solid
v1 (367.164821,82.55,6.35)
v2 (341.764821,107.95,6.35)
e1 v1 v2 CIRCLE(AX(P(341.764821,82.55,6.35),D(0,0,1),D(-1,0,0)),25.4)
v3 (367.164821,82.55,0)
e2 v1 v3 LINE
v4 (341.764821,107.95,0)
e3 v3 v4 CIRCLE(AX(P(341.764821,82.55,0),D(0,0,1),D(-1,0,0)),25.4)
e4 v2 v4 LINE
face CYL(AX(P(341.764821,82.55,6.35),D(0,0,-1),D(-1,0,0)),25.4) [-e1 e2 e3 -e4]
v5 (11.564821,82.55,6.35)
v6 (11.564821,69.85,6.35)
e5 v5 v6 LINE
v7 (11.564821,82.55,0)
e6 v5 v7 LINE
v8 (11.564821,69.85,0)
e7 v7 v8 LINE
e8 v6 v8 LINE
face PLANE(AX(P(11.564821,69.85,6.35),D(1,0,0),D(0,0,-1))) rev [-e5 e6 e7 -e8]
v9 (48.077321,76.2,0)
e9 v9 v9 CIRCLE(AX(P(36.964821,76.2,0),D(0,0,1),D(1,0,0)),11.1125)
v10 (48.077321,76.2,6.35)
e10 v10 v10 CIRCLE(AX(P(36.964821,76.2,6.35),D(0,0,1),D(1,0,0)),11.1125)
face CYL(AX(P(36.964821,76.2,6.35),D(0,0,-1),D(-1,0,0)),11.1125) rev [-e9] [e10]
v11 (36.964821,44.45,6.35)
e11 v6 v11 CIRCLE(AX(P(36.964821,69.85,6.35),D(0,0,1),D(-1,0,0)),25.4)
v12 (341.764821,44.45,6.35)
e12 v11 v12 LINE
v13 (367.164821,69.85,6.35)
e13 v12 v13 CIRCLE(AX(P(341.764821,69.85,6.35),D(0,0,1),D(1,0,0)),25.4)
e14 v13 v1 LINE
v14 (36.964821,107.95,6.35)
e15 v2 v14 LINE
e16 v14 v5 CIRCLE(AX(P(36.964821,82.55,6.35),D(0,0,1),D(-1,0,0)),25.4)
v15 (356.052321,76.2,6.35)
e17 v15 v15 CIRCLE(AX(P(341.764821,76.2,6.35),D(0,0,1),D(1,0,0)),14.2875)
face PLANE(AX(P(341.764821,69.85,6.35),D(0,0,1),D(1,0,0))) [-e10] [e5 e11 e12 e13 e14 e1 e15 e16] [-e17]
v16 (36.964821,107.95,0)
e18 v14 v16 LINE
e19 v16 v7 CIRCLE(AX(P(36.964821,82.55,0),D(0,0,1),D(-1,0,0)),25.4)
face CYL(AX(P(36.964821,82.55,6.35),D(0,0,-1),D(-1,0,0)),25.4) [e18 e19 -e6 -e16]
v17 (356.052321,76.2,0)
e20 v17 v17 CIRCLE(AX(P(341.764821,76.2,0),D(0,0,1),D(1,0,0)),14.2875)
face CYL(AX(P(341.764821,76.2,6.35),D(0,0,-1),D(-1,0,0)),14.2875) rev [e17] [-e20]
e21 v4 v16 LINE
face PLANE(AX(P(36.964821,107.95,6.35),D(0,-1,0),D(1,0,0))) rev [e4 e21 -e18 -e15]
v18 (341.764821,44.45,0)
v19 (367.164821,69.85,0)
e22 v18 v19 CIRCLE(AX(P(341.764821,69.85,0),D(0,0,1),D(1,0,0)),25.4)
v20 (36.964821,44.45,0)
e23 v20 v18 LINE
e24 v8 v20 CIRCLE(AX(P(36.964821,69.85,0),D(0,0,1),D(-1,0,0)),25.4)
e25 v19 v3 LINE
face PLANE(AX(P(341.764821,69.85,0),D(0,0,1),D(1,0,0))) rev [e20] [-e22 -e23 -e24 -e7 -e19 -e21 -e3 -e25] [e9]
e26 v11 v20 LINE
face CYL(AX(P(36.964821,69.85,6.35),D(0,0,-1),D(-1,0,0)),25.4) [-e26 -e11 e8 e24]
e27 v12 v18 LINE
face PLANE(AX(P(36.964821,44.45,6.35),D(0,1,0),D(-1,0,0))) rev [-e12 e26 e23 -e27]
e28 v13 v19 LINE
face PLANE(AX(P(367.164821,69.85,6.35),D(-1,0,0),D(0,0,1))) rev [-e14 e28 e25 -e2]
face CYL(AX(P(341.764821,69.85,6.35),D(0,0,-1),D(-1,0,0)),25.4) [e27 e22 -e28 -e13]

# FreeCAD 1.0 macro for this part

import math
import FreeCAD as App
import Part
import Sketcher

V = App.Vector
Q = App.Units.Quantity

doc = App.newDocument("Part")
params = doc.addObject("Spreadsheet::Sheet", "Params")
for row, (alias, value) in enumerate([
    ("sketch1_radius", "1 in"),
    ("sketch1_width", "12 in"),
    ("sketch1_diameter", "0.875 in"),
    ("sketch1_diameter2", "1.125 in"),
    ("sketch1_height", "0.5 in"),
    ("pad1_length", "0.25 in"),
], start=1):
    params.set(f"A{row}", alias)
    params.set(f"B{row}", "=" + value)
    params.setAlias(f"B{row}", alias)

body = doc.addObject("PartDesign::Body", "Body")

# Sketch on XY plane
sketch1 = body.newObject("Sketcher::SketchObject", "Sketch")
sketch1.AttachmentSupport = (doc.getObject("XY_Plane"), [""])
sketch1.MapMode = "FlatFace"
sketch1.addGeometry([
    Part.LineSegment(V(37, 44, 0), V(342, 44, 0)),  # 0
    Part.ArcOfCircle(Part.Circle(V(342, 70, 0), V(0, 0, 1), 25), math.radians(-90), math.radians(0)),  # 1
    Part.LineSegment(V(367, 70, 0), V(367, 83, 0)),  # 2
    Part.ArcOfCircle(Part.Circle(V(342, 83, 0), V(0, 0, 1), 25), math.radians(0), math.radians(90)),  # 3
    Part.LineSegment(V(342, 108, 0), V(37, 108, 0)),  # 4
    Part.ArcOfCircle(Part.Circle(V(37, 83, 0), V(0, 0, 1), 25), math.radians(90), math.radians(180)),  # 5
    Part.LineSegment(V(12, 83, 0), V(12, 70, 0)),  # 6
    Part.ArcOfCircle(Part.Circle(V(37, 70, 0), V(0, 0, 1), 25), math.radians(180), math.radians(270)),  # 7
    Part.Circle(V(37, 76, 0), V(0, 0, 1), 11),  # 8
    Part.Circle(V(342, 76, 0), V(0, 0, 1), 14),  # 9
], False)
sketch1.addConstraint([
    Sketcher.Constraint("Tangent", 0, 2, 1, 1),
    Sketcher.Constraint("Tangent", 1, 2, 2, 1),
    Sketcher.Constraint("Tangent", 2, 2, 3, 1),
    Sketcher.Constraint("Tangent", 3, 2, 4, 1),
    Sketcher.Constraint("Tangent", 4, 2, 5, 1),
    Sketcher.Constraint("Tangent", 5, 2, 6, 1),
    Sketcher.Constraint("Tangent", 6, 2, 7, 1),
    Sketcher.Constraint("Tangent", 7, 2, 0, 1),
    Sketcher.Constraint("Horizontal", 0),
    Sketcher.Constraint("Vertical", 2),
    Sketcher.Constraint("Horizontal", 4),
    Sketcher.Constraint("Vertical", 6),
    Sketcher.Constraint("Equal", 1, 3),
    Sketcher.Constraint("Equal", 3, 5),
    Sketcher.Constraint("Equal", 5, 7),
    Sketcher.Constraint("Horizontal", 8, 3, 9, 3),
    Sketcher.Constraint("Vertical", 7, 3, 8, 3),
    Sketcher.Constraint("Vertical", 3, 3, 9, 3),
    Sketcher.Constraint("Radius", 1, Q("1 in")),
    Sketcher.Constraint("DistanceX", 0, 1, 0, 2, Q("12 in")),
    Sketcher.Constraint("Diameter", 8, Q("0.875 in")),
    Sketcher.Constraint("Diameter", 9, Q("1.125 in")),
    Sketcher.Constraint("DistanceY", 2, 1, 2, 2, Q("0.5 in")),
    Sketcher.Constraint("DistanceY", -1, 1, 8, 3, Q("3 in")),
    Sketcher.Constraint("DistanceY", -1, 1, 1, 3, Q("2.75 in")),
    Sketcher.Constraint("DistanceX", -1, 1, 1, 3, 341.764821),
])
sketch1.setExpression("Constraints[18]", "Params.sketch1_radius")
sketch1.setExpression("Constraints[19]", "Params.sketch1_width")
sketch1.setExpression("Constraints[20]", "Params.sketch1_diameter")
sketch1.setExpression("Constraints[21]", "Params.sketch1_diameter2")
sketch1.setExpression("Constraints[22]", "Params.sketch1_height")
pad1 = body.newObject("PartDesign::Pad", "Pad")
pad1.Profile = sketch1
pad1.setExpression("Length", "Params.pad1_length")

doc.recompute()
